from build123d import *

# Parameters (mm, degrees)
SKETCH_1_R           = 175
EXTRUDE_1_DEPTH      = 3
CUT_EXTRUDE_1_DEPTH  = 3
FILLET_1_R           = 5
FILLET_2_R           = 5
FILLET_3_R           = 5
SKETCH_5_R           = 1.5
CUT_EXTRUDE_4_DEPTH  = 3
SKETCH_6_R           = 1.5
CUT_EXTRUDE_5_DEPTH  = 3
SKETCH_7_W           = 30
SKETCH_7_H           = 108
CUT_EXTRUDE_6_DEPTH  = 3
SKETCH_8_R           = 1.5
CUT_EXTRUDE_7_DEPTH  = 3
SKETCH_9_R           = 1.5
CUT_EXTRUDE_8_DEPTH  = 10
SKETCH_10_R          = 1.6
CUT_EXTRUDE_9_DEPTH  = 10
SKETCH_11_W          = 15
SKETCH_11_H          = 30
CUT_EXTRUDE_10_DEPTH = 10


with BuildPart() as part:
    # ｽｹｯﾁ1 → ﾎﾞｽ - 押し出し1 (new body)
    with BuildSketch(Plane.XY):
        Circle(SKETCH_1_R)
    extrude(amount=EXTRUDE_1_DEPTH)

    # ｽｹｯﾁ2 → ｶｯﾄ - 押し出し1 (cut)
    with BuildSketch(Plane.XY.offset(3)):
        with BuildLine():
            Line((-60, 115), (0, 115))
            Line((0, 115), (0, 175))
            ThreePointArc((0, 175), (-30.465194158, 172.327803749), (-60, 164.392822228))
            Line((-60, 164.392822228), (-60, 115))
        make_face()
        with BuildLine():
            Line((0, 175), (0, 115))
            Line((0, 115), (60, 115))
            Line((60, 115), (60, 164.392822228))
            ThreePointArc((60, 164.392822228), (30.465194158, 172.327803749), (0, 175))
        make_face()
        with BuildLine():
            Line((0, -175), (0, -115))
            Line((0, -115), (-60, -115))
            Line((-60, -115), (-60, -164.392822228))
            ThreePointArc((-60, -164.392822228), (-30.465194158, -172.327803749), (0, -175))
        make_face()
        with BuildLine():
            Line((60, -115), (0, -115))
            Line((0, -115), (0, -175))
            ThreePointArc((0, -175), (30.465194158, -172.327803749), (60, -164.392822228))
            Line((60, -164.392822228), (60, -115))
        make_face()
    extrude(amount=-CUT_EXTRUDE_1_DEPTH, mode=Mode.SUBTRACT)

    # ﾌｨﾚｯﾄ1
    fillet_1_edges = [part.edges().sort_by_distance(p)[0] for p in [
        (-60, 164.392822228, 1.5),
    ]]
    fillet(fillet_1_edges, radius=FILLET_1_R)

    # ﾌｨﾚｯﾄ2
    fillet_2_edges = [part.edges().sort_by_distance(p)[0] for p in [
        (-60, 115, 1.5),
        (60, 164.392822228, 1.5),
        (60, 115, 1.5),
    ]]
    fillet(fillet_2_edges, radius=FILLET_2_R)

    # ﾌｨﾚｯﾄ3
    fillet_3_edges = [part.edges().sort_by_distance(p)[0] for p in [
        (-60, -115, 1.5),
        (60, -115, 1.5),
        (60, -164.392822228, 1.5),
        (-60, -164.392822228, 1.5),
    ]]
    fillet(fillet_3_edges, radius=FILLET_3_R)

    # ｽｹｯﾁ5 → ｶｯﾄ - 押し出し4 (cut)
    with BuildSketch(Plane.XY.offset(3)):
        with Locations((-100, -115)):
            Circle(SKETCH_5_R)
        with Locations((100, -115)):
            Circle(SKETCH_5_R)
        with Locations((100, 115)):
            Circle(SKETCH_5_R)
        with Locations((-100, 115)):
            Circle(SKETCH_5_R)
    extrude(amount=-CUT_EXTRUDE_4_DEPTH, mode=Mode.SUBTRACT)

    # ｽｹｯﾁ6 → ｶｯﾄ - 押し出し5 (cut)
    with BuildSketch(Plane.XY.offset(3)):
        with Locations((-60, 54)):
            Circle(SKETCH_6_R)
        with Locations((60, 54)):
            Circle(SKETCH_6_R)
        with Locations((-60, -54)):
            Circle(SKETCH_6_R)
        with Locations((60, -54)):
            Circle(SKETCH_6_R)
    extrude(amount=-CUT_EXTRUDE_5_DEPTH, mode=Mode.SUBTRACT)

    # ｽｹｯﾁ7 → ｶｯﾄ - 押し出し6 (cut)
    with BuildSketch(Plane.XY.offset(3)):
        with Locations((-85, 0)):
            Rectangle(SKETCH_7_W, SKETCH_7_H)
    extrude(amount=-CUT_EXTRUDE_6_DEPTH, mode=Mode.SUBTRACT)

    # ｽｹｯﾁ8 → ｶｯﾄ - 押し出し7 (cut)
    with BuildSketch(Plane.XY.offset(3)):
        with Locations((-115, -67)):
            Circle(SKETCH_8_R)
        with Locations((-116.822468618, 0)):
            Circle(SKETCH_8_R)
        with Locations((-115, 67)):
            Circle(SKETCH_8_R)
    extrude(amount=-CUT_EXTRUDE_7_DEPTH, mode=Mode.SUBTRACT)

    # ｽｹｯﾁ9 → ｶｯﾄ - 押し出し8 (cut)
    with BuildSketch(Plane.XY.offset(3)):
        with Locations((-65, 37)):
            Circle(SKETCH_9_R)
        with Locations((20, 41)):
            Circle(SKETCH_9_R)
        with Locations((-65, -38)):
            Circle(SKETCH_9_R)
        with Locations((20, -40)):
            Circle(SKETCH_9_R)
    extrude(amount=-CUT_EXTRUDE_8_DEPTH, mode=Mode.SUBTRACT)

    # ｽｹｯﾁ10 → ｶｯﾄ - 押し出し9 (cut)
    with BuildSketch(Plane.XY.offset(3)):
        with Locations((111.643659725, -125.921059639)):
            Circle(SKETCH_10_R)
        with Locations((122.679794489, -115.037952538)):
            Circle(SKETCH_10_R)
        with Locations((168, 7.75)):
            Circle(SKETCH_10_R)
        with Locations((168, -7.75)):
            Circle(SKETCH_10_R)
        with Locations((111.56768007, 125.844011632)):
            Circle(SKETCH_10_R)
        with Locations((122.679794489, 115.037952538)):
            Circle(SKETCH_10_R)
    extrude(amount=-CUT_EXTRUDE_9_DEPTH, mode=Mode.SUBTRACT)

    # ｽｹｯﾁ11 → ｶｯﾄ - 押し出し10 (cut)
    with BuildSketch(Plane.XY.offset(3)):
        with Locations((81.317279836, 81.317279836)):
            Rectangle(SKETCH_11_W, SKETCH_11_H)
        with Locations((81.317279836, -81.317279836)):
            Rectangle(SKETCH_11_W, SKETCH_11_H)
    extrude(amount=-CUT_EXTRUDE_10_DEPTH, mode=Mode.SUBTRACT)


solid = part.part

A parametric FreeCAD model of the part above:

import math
import FreeCAD as App
import Part
import Sketcher

V = App.Vector
Q = App.Units.Quantity


def edges_at(feature, points):
    """Names of the edges that pass closest to the given points."""
    edges = feature.Shape.Edges
    near = lambda p: min(range(len(edges)), key=lambda i: edges[i].distToShape(Part.Vertex(*p))[0])
    return sorted({f"Edge{near(p) + 1}" for p in points})


def add_polygon(sketch, points):
    """Adds a closed chain of lines whose ends are joined by coincident constraints."""
    first, n = sketch.GeometryCount, len(points)
    for a, b in zip(points, points[1:] + points[:1]):
        sketch.addGeometry(Part.LineSegment(App.Vector(*a, 0), App.Vector(*b, 0)), False)
    for i in range(n):
        sketch.addConstraint(Sketcher.Constraint("Coincident", first + i, 2, first + (i + 1) % n, 1))

doc = App.newDocument("Part")
body = doc.addObject("PartDesign::Body", "Body")

# Sketch on XY plane
sketch1 = body.newObject("Sketcher::SketchObject", "Sketch")
sketch1.AttachmentSupport = (doc.getObject("XY_Plane"), [""])
sketch1.MapMode = "FlatFace"
sketch1.addGeometry(Part.Circle(V(0, 0, 0), V(0, 0, 1), 175), False)
sketch1.addConstraint(Sketcher.Constraint("Coincident", 0, 3, -1, 1))
sketch1.addConstraint(Sketcher.Constraint("Diameter", 0, Q("350 mm")))
pad1 = body.newObject("PartDesign::Pad", "Pad")
pad1.Profile = sketch1
pad1.Length = 3

# Sketch on XY plane
sketch2 = body.newObject("Sketcher::SketchObject", "Sketch001")
sketch2.AttachmentSupport = (doc.getObject("XY_Plane"), [""])
sketch2.MapMode = "FlatFace"
sketch2.AttachmentOffset = App.Placement(V(0, 0, 3), App.Rotation())
sketch2.addGeometry(Part.LineSegment(V(-60, 115, 0), V(60, 115, 0)), False)
sketch2.addGeometry(Part.LineSegment(V(60, 115, 0), V(60, 164, 0)), False)
sketch2.addGeometry(Part.ArcOfCircle(Part.Circle(V(0, 0, 0), V(0, 0, 1), 175), math.radians(70), math.radians(90)), False)
sketch2.addGeometry(Part.ArcOfCircle(Part.Circle(V(0, 0, 0), V(0, 0, 1), 175), math.radians(90), math.radians(110)), False)
sketch2.addGeometry(Part.LineSegment(V(-60, 164, 0), V(-60, 115, 0)), False)
sketch2.addGeometry(Part.LineSegment(V(-60, -115, 0), V(-60, -164, 0)), False)
sketch2.addGeometry(Part.ArcOfCircle(Part.Circle(V(0, 0, 0), V(0, 0, 1), 175), math.radians(-110), math.radians(-90)), False)
sketch2.addGeometry(Part.ArcOfCircle(Part.Circle(V(0, 0, 0), V(0, 0, 1), 175), math.radians(-90), math.radians(-70)), False)
sketch2.addGeometry(Part.LineSegment(V(60, -164, 0), V(60, -115, 0)), False)
sketch2.addGeometry(Part.LineSegment(V(60, -115, 0), V(-60, -115, 0)), False)
sketch2.addConstraint(Sketcher.Constraint("Coincident", 0, 2, 1, 1))
sketch2.addConstraint(Sketcher.Constraint("Coincident", 1, 2, 2, 1))
sketch2.addConstraint(Sketcher.Constraint("Tangent", 2, 2, 3, 1))
sketch2.addConstraint(Sketcher.Constraint("Coincident", 3, 2, 4, 1))
sketch2.addConstraint(Sketcher.Constraint("Coincident", 4, 2, 0, 1))
sketch2.addConstraint(Sketcher.Constraint("Coincident", 5, 2, 6, 1))
sketch2.addConstraint(Sketcher.Constraint("Tangent", 6, 2, 7, 1))
sketch2.addConstraint(Sketcher.Constraint("Coincident", 7, 2, 8, 1))
sketch2.addConstraint(Sketcher.Constraint("Coincident", 8, 2, 9, 1))
sketch2.addConstraint(Sketcher.Constraint("Coincident", 9, 2, 5, 1))
sketch2.addConstraint(Sketcher.Constraint("Horizontal", 0))
sketch2.addConstraint(Sketcher.Constraint("Vertical", 1))
sketch2.addConstraint(Sketcher.Constraint("Vertical", 4))
sketch2.addConstraint(Sketcher.Constraint("Vertical", 5))
sketch2.addConstraint(Sketcher.Constraint("Vertical", 8))
sketch2.addConstraint(Sketcher.Constraint("Horizontal", 9))
sketch2.addConstraint(Sketcher.Constraint("Coincident", 2, 3, -1, 1))
sketch2.addConstraint(Sketcher.Constraint("Coincident", 6, 3, -1, 1))
sketch2.addConstraint(Sketcher.Constraint("Equal", 2, 3))
sketch2.addConstraint(Sketcher.Constraint("Equal", 3, 6))
sketch2.addConstraint(Sketcher.Constraint("Equal", 6, 7))
sketch2.addConstraint(Sketcher.Constraint("Symmetric", 4, 2, 8, 2, -1, 1))
sketch2.addConstraint(Sketcher.Constraint("PointOnObject", 2, 2, -2))
sketch2.addConstraint(Sketcher.Constraint("PointOnObject", 6, 2, -2))
sketch2.addConstraint(Sketcher.Constraint("Horizontal", 1, 2, 3, 2))
sketch2.addConstraint(Sketcher.Constraint("Horizontal", 5, 2, 7, 2))
sketch2.addConstraint(Sketcher.Constraint("Radius", 2, Q("175 mm")))
sketch2.addConstraint(Sketcher.Constraint("DistanceX", 0, 1, 0, 2, Q("120 mm")))
sketch2.addConstraint(Sketcher.Constraint("DistanceY", -1, 1, 0, 2, Q("115 mm")))
pocket1 = body.newObject("PartDesign::Pocket", "Pocket")
pocket1.Profile = sketch2
pocket1.Length = 3
doc.recompute()

fillet = body.newObject("PartDesign::Fillet", "Fillet")
fillet.Base = (pocket1, edges_at(pocket1, [(-60, 164.393, 1.5)]))
fillet.Radius = 5
doc.recompute()

fillet2 = body.newObject("PartDesign::Fillet", "Fillet001")
fillet2.Base = (fillet, edges_at(fillet, [(-60, 115, 1.5), (60, 164.393, 1.5), (60, 115, 1.5)]))
fillet2.Radius = 5
doc.recompute()

fillet3 = body.newObject("PartDesign::Fillet", "Fillet002")
fillet3.Base = (fillet2, edges_at(fillet2, [
    (-60, -115, 1.5),
    (60, -115, 1.5),
    (60, -164.393, 1.5),
    (-60, -164.393, 1.5),
]))
fillet3.Radius = 5

# Sketch on XY plane
sketch3 = body.newObject("Sketcher::SketchObject", "Sketch002")
sketch3.AttachmentSupport = (doc.getObject("XY_Plane"), [""])
sketch3.MapMode = "FlatFace"
sketch3.AttachmentOffset = App.Placement(V(0, 0, 3), App.Rotation())
sketch3.addGeometry(Part.Circle(V(-100, -115, 0), V(0, 0, 1), 1.5), False)
sketch3.addGeometry(Part.Circle(V(100, -115, 0), V(0, 0, 1), 1.5), False)
sketch3.addGeometry(Part.Circle(V(100, 115, 0), V(0, 0, 1), 1.5), False)
sketch3.addGeometry(Part.Circle(V(-100, 115, 0), V(0, 0, 1), 1.5), False)
sketch3.addConstraint(Sketcher.Constraint("Equal", 0, 1))
sketch3.addConstraint(Sketcher.Constraint("Equal", 1, 2))
sketch3.addConstraint(Sketcher.Constraint("Equal", 2, 3))
sketch3.addConstraint(Sketcher.Constraint("Symmetric", 0, 3, 2, 3, -1, 1))
sketch3.addConstraint(Sketcher.Constraint("Symmetric", 1, 3, 3, 3, -1, 1))
sketch3.addConstraint(Sketcher.Constraint("Symmetric", 0, 3, 1, 3, -2))
sketch3.addConstraint(Sketcher.Constraint("Diameter", 0, Q("3 mm")))
sketch3.addConstraint(Sketcher.Constraint("DistanceX", 0, 3, -1, 1, Q("100 mm")))
sketch3.addConstraint(Sketcher.Constraint("DistanceY", 0, 3, -1, 1, Q("115 mm")))
pocket2 = body.newObject("PartDesign::Pocket", "Pocket001")
pocket2.Profile = sketch3
pocket2.Length = 3

# Sketch on XY plane
sketch4 = body.newObject("Sketcher::SketchObject", "Sketch003")
sketch4.AttachmentSupport = (doc.getObject("XY_Plane"), [""])
sketch4.MapMode = "FlatFace"
sketch4.AttachmentOffset = App.Placement(V(0, 0, 3), App.Rotation())
sketch4.addGeometry(Part.Circle(V(-60, 54, 0), V(0, 0, 1), 1.5), False)
sketch4.addGeometry(Part.Circle(V(60, 54, 0), V(0, 0, 1), 1.5), False)
sketch4.addGeometry(Part.Circle(V(-60, -54, 0), V(0, 0, 1), 1.5), False)
sketch4.addGeometry(Part.Circle(V(60, -54, 0), V(0, 0, 1), 1.5), False)
sketch4.addConstraint(Sketcher.Constraint("Equal", 0, 1))
sketch4.addConstraint(Sketcher.Constraint("Equal", 1, 2))
sketch4.addConstraint(Sketcher.Constraint("Equal", 2, 3))
sketch4.addConstraint(Sketcher.Constraint("Symmetric", 1, 3, 2, 3, -1, 1))
sketch4.addConstraint(Sketcher.Constraint("Symmetric", 0, 3, 3, 3, -1, 1))
sketch4.addConstraint(Sketcher.Constraint("Symmetric", 0, 3, 1, 3, -2))
sketch4.addConstraint(Sketcher.Constraint("Diameter", 0, Q("3 mm")))
sketch4.addConstraint(Sketcher.Constraint("DistanceX", 0, 3, -1, 1, Q("60 mm")))
sketch4.addConstraint(Sketcher.Constraint("DistanceY", -1, 1, 0, 3, Q("54 mm")))
pocket3 = body.newObject("PartDesign::Pocket", "Pocket002")
pocket3.Profile = sketch4
pocket3.Length = 3

# Sketch on XY plane
sketch5 = body.newObject("Sketcher::SketchObject", "Sketch004")
sketch5.AttachmentSupport = (doc.getObject("XY_Plane"), [""])
sketch5.MapMode = "FlatFace"
sketch5.AttachmentOffset = App.Placement(V(0, 0, 3), App.Rotation())
add_polygon(sketch5, [(-100, 54), (-100, -54), (-70, -54), (-70, 54)])  # lines 0-3
sketch5.addConstraint(Sketcher.Constraint("Vertical", 0))
sketch5.addConstraint(Sketcher.Constraint("Horizontal", 1))
sketch5.addConstraint(Sketcher.Constraint("Vertical", 2))
sketch5.addConstraint(Sketcher.Constraint("Horizontal", 3))
sketch5.addConstraint(Sketcher.Constraint("DistanceX", 1, 1, 1, 2, Q("30 mm")))
sketch5.addConstraint(Sketcher.Constraint("DistanceY", 0, 2, 0, 1, Q("108 mm")))
sketch5.addConstraint(Sketcher.Constraint("DistanceX", 0, 2, -1, 1, Q("100 mm")))
sketch5.addConstraint(Sketcher.Constraint("DistanceY", 0, 2, -1, 1, Q("54 mm")))
pocket4 = body.newObject("PartDesign::Pocket", "Pocket003")
pocket4.Profile = sketch5
pocket4.Length = 3

# Sketch on XY plane
sketch6 = body.newObject("Sketcher::SketchObject", "Sketch005")
sketch6.AttachmentSupport = (doc.getObject("XY_Plane"), [""])
sketch6.MapMode = "FlatFace"
sketch6.AttachmentOffset = App.Placement(V(0, 0, 3), App.Rotation())
sketch6.addGeometry(Part.Circle(V(-115, -67, 0), V(0, 0, 1), 1.5), False)
sketch6.addGeometry(Part.Circle(V(-116.8, 0, 0), V(0, 0, 1), 1.5), False)
sketch6.addGeometry(Part.Circle(V(-115, 67, 0), V(0, 0, 1), 1.5), False)
sketch6.addConstraint(Sketcher.Constraint("Equal", 0, 1))
sketch6.addConstraint(Sketcher.Constraint("Equal", 1, 2))
sketch6.addConstraint(Sketcher.Constraint("Symmetric", 0, 3, 2, 3, -1))
sketch6.addConstraint(Sketcher.Constraint("PointOnObject", 1, 3, -1))
sketch6.addConstraint(Sketcher.Constraint("Diameter", 0, Q("3 mm")))
sketch6.addConstraint(Sketcher.Constraint("DistanceX", 0, 3, -1, 1, Q("115 mm")))
sketch6.addConstraint(Sketcher.Constraint("DistanceY", 0, 3, -1, 1, Q("67 mm")))
sketch6.addConstraint(Sketcher.Constraint("DistanceX", 1, 3, -1, 1, Q("116.822469 mm")))
pocket5 = body.newObject("PartDesign::Pocket", "Pocket004")
pocket5.Profile = sketch6
pocket5.Length = 3

# Sketch on XY plane
sketch7 = body.newObject("Sketcher::SketchObject", "Sketch006")
sketch7.AttachmentSupport = (doc.getObject("XY_Plane"), [""])
sketch7.MapMode = "FlatFace"
sketch7.AttachmentOffset = App.Placement(V(0, 0, 3), App.Rotation())
sketch7.addGeometry(Part.Circle(V(-65, 37, 0), V(0, 0, 1), 1.5), False)
sketch7.addGeometry(Part.Circle(V(20, 41, 0), V(0, 0, 1), 1.5), False)
sketch7.addGeometry(Part.Circle(V(-65, -38, 0), V(0, 0, 1), 1.5), False)
sketch7.addGeometry(Part.Circle(V(20, -40, 0), V(0, 0, 1), 1.5), False)
sketch7.addConstraint(Sketcher.Constraint("Equal", 0, 1))
sketch7.addConstraint(Sketcher.Constraint("Equal", 1, 2))
sketch7.addConstraint(Sketcher.Constraint("Equal", 2, 3))
sketch7.addConstraint(Sketcher.Constraint("Vertical", 0, 3, 2, 3))
sketch7.addConstraint(Sketcher.Constraint("Vertical", 1, 3, 3, 3))
sketch7.addConstraint(Sketcher.Constraint("Diameter", 0, Q("3 mm")))
sketch7.addConstraint(Sketcher.Constraint("DistanceX", 0, 3, -1, 1, Q("65 mm")))
sketch7.addConstraint(Sketcher.Constraint("DistanceY", -1, 1, 0, 3, Q("37 mm")))
sketch7.addConstraint(Sketcher.Constraint("DistanceX", -1, 1, 1, 3, Q("20 mm")))
sketch7.addConstraint(Sketcher.Constraint("DistanceY", -1, 1, 1, 3, Q("41 mm")))
sketch7.addConstraint(Sketcher.Constraint("DistanceY", 2, 3, -1, 1, Q("38 mm")))
sketch7.addConstraint(Sketcher.Constraint("DistanceY", 3, 3, -1, 1, Q("40 mm")))
pocket6 = body.newObject("PartDesign::Pocket", "Pocket005")
pocket6.Profile = sketch7
pocket6.Length = 10

# Sketch on XY plane
sketch8 = body.newObject("Sketcher::SketchObject", "Sketch007")
sketch8.AttachmentSupport = (doc.getObject("XY_Plane"), [""])
sketch8.MapMode = "FlatFace"
sketch8.AttachmentOffset = App.Placement(V(0, 0, 3), App.Rotation())
sketch8.addGeometry(Part.Circle(V(111.6, -125.9, 0), V(0, 0, 1), 1.6), False)
sketch8.addGeometry(Part.Circle(V(122.7, -115, 0), V(0, 0, 1), 1.6), False)
sketch8.addGeometry(Part.Circle(V(168, 7.8, 0), V(0, 0, 1), 1.6), False)
sketch8.addGeometry(Part.Circle(V(168, -7.8, 0), V(0, 0, 1), 1.6), False)
sketch8.addGeometry(Part.Circle(V(111.6, 125.8, 0), V(0, 0, 1), 1.6), False)
sketch8.addGeometry(Part.Circle(V(122.7, 115, 0), V(0, 0, 1), 1.6), False)
sketch8.addConstraint(Sketcher.Constraint("Equal", 0, 1))
sketch8.addConstraint(Sketcher.Constraint("Equal", 1, 2))
sketch8.addConstraint(Sketcher.Constraint("Equal", 2, 3))
sketch8.addConstraint(Sketcher.Constraint("Equal", 3, 4))
sketch8.addConstraint(Sketcher.Constraint("Equal", 4, 5))
sketch8.addConstraint(Sketcher.Constraint("Symmetric", 2, 3, 3, 3, -1))
sketch8.addConstraint(Sketcher.Constraint("Symmetric", 1, 3, 5, 3, -1))
sketch8.addConstraint(Sketcher.Constraint("Diameter", 0, Q("3.2 mm")))
sketch8.addConstraint(Sketcher.Constraint("DistanceX", -1, 1, 2, 3, Q("168 mm")))
sketch8.addConstraint(Sketcher.Constraint("DistanceY", 3, 3, 2, 3, Q("15.5 mm")))
sketch8.addConstraint(Sketcher.Constraint("DistanceX", -1, 1, 0, 3, Q("111.64366 mm")))
sketch8.addConstraint(Sketcher.Constraint("DistanceY", 0, 3, -1, 1, Q("125.92106 mm")))
sketch8.addConstraint(Sketcher.Constraint("DistanceX", -1, 1, 4, 3, Q("111.56768 mm")))
sketch8.addConstraint(Sketcher.Constraint("DistanceY", -1, 1, 4, 3, Q("125.844012 mm")))
sketch8.addConstraint(Sketcher.Constraint("DistanceY", 5, 3, 4, 3, Q("10.806059 mm")))
sketch8.addConstraint(Sketcher.Constraint("DistanceX", -1, 1, 1, 3, Q("122.679794 mm")))
pocket7 = body.newObject("PartDesign::Pocket", "Pocket006")
pocket7.Profile = sketch8
pocket7.Length = 10

# Sketch on XY plane
sketch9 = body.newObject("Sketcher::SketchObject", "Sketch008")
sketch9.AttachmentSupport = (doc.getObject("XY_Plane"), [""])
sketch9.MapMode = "FlatFace"
sketch9.AttachmentOffset = App.Placement(V(0, 0, 3), App.Rotation())
add_polygon(sketch9, [(74, 96), (74, 66), (89, 66), (89, 96)])  # lines 0-3
add_polygon(sketch9, [(74, -66), (74, -96), (89, -96), (89, -66)])  # lines 4-7
sketch9.addConstraint(Sketcher.Constraint("Vertical", 0))
sketch9.addConstraint(Sketcher.Constraint("Horizontal", 1))
sketch9.addConstraint(Sketcher.Constraint("Vertical", 2))
sketch9.addConstraint(Sketcher.Constraint("Horizontal", 3))
sketch9.addConstraint(Sketcher.Constraint("Vertical", 4))
sketch9.addConstraint(Sketcher.Constraint("Horizontal", 5))
sketch9.addConstraint(Sketcher.Constraint("Vertical", 6))
sketch9.addConstraint(Sketcher.Constraint("Horizontal", 7))
sketch9.addConstraint(Sketcher.Constraint("Symmetric", 3, 2, 4, 2, -1))
sketch9.addConstraint(Sketcher.Constraint("Symmetric", 1, 2, 6, 2, -1))
sketch9.addConstraint(Sketcher.Constraint("DistanceX", 1, 1, 1, 2, Q("15 mm")))
sketch9.addConstraint(Sketcher.Constraint("DistanceY", 0, 2, 0, 1, Q("30 mm")))
sketch9.addConstraint(Sketcher.Constraint("DistanceX", -1, 1, 0, 2, Q("73.81728 mm")))
sketch9.addConstraint(Sketcher.Constraint("DistanceY", -1, 1, 0, 2, Q("66.31728 mm")))
pocket8 = body.newObject("PartDesign::Pocket", "Pocket007")
pocket8.Profile = sketch9
pocket8.Length = 10

doc.recompute()
